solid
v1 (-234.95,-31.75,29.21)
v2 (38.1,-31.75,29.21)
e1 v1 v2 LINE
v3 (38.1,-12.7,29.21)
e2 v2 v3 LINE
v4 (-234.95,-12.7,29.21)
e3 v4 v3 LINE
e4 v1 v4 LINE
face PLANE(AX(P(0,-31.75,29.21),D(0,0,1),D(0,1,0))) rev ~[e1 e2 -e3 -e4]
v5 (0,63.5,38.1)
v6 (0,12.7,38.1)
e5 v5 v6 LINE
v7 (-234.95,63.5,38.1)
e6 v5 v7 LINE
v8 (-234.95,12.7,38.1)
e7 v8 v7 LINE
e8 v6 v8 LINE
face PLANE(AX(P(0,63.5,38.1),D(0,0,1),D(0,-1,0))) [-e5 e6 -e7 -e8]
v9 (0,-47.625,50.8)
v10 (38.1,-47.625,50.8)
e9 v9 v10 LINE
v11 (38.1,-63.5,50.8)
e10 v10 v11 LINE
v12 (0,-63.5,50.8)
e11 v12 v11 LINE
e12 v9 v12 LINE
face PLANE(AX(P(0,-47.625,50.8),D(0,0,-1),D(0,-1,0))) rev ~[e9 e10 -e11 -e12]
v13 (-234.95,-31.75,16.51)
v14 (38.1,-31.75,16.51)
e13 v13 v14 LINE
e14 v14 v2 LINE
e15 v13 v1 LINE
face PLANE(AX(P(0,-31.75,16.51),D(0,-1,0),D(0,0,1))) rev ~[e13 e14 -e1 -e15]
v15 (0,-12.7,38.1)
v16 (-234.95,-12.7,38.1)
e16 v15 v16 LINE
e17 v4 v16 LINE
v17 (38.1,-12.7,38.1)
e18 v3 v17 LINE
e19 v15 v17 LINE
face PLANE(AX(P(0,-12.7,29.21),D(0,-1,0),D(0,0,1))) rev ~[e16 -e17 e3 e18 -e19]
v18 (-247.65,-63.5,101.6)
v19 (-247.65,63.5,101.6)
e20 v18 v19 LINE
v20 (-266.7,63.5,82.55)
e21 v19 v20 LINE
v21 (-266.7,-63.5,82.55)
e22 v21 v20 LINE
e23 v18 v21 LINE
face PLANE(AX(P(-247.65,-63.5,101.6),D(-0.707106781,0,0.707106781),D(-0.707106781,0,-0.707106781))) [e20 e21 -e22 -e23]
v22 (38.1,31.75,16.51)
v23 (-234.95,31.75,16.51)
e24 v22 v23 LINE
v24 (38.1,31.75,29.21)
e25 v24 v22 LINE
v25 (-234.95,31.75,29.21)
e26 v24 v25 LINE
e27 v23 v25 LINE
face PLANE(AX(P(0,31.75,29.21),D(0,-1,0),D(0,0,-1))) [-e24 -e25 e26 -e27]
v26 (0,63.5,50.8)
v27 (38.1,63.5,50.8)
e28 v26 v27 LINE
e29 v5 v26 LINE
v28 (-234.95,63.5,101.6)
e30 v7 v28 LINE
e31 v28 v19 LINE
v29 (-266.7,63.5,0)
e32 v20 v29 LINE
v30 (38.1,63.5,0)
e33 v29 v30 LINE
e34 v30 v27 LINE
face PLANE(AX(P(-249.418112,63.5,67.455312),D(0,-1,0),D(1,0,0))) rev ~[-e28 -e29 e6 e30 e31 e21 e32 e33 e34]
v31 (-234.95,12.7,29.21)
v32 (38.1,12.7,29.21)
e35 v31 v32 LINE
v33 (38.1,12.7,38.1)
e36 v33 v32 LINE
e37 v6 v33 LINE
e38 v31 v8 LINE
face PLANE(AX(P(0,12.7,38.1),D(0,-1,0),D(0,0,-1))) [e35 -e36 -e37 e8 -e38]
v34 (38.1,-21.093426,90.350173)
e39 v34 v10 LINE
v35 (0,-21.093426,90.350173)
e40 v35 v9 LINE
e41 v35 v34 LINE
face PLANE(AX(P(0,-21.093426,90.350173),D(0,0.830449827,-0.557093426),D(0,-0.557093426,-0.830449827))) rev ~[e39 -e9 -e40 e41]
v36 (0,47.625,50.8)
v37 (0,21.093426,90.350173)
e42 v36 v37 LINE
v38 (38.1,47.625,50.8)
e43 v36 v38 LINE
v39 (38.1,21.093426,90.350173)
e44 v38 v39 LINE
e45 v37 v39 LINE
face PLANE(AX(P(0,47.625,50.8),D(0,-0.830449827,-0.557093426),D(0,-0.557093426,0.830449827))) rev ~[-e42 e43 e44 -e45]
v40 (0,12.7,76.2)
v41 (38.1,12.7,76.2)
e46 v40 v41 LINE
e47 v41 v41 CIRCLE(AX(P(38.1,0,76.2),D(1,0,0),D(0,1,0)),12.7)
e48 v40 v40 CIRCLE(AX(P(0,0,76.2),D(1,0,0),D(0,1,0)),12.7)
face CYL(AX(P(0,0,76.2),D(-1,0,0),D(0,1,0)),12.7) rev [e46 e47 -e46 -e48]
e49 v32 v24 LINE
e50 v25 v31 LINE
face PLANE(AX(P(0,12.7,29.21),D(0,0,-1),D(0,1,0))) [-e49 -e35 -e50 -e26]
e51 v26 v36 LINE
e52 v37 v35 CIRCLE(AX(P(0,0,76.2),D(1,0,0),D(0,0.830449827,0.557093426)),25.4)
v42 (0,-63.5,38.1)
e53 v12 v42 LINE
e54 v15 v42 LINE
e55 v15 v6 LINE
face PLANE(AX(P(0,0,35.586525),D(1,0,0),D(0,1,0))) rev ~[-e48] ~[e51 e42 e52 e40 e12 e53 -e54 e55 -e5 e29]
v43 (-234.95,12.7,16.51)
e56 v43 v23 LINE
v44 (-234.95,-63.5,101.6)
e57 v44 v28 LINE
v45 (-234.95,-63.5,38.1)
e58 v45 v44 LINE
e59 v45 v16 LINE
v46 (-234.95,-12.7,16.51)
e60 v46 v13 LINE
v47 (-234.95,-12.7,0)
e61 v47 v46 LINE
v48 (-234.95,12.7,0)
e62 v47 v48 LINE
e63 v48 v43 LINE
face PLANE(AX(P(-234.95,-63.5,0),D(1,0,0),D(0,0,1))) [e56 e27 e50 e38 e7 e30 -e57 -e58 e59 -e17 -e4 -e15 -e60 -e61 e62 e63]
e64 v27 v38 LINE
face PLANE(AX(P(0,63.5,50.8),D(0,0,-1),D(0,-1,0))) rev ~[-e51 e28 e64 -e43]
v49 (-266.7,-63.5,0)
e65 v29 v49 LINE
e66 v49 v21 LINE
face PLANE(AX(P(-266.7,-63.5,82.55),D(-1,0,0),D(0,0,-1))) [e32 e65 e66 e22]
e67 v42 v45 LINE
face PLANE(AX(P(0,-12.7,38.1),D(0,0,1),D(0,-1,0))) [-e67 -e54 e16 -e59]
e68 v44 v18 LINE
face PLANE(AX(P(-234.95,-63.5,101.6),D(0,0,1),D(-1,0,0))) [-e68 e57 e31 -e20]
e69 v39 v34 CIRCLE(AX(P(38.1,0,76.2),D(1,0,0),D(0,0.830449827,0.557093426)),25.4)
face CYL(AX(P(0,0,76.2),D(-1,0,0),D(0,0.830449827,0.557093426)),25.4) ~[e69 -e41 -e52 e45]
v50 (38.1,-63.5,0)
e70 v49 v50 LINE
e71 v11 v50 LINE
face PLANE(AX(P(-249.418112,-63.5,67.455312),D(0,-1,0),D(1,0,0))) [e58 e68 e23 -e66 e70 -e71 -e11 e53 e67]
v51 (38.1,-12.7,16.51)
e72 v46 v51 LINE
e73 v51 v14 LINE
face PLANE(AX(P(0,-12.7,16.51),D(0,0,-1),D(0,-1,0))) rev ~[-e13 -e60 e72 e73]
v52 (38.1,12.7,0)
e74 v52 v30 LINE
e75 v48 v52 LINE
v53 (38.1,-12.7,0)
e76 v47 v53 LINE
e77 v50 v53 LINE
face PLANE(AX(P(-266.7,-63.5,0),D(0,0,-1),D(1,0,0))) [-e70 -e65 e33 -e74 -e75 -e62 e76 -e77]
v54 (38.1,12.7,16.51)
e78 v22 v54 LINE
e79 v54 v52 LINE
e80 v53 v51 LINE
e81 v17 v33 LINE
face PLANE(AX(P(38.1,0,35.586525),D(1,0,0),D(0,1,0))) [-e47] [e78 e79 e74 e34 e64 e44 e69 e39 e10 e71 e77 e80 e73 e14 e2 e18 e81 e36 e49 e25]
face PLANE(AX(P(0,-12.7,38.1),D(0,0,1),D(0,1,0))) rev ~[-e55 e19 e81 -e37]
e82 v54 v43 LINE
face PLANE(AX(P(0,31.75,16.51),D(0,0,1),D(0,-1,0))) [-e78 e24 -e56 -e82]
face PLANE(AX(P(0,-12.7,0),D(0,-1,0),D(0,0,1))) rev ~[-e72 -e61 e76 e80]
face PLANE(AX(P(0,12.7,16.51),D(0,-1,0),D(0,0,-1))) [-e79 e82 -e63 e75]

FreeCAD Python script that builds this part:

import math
import FreeCAD as App
import Part
import Sketcher
from FreeCAD import Vector
Q = App.Units.Quantity


def add_polygon(sketch, points):
    """Adds a closed chain of lines whose ends are joined by coincident constraints."""
    first, n = sketch.GeometryCount, len(points)
    for a, b in zip(points, points[1:] + points[:1]):
        sketch.addGeometry(Part.LineSegment(App.Vector(*a, 0), App.Vector(*b, 0)), False)
    for i in range(n):
        sketch.addConstraint(Sketcher.Constraint("Coincident", first + i, 2, first + (i + 1) % n, 1))

doc = App.newDocument("Part")
body = doc.addObject("PartDesign::Body", "Body")

sketch1 = body.newObject("Sketcher::SketchObject", "Sketch")
sketch1.AttachmentSupport = (doc.getObject("YZ_Plane"), [""])
sketch1.MapMode = "FlatFace"
sketch1.addGeometry([
    Part.LineSegment(Vector(-64, 0, 0), Vector(-13, 0, 0)),
    Part.LineSegment(Vector(-13, 0, 0), Vector(-13, 17, 0)),
    Part.LineSegment(Vector(-13, 17, 0), Vector(-32, 17, 0)),
    Part.LineSegment(Vector(-32, 17, 0), Vector(-32, 29, 0)),
    Part.LineSegment(Vector(-32, 29, 0), Vector(-13, 29, 0)),
    Part.LineSegment(Vector(-13, 29, 0), Vector(-13, 38, 0)),
    Part.LineSegment(Vector(-13, 38, 0), Vector(13, 38, 0)),
    Part.LineSegment(Vector(13, 38, 0), Vector(13, 29, 0)),
    Part.LineSegment(Vector(13, 29, 0), Vector(32, 29, 0)),
    Part.LineSegment(Vector(32, 29, 0), Vector(32, 17, 0)),
    Part.LineSegment(Vector(32, 17, 0), Vector(13, 17, 0)),
    Part.LineSegment(Vector(13, 17, 0), Vector(13, 0, 0)),
    Part.LineSegment(Vector(13, 0, 0), Vector(64, 0, 0)),
    Part.LineSegment(Vector(64, 0, 0), Vector(64, 51, 0)),
    Part.LineSegment(Vector(64, 51, 0), Vector(48, 51, 0)),
    Part.LineSegment(Vector(48, 51, 0), Vector(21, 90, 0)),
    Part.ArcOfCircle(Part.Circle(Vector(0, 76, 0), Vector(0, 0, 1), 25), math.radians(34), math.radians(146)),
    Part.LineSegment(Vector(-21, 90, 0), Vector(-48, 51, 0)),
    Part.LineSegment(Vector(-48, 51, 0), Vector(-64, 51, 0)),
    Part.LineSegment(Vector(-64, 51, 0), Vector(-64, 0, 0)),
    Part.Circle(Vector(0, 76, 0), Vector(0, 0, 1), 13),
], False)
sketch1.addConstraint([
    Sketcher.Constraint("Coincident", 0, 2, 1, 1),
    Sketcher.Constraint("Coincident", 1, 2, 2, 1),
    Sketcher.Constraint("Coincident", 2, 2, 3, 1),
    Sketcher.Constraint("Coincident", 3, 2, 4, 1),
    Sketcher.Constraint("Coincident", 4, 2, 5, 1),
    Sketcher.Constraint("Coincident", 5, 2, 6, 1),
    Sketcher.Constraint("Coincident", 6, 2, 7, 1),
    Sketcher.Constraint("Coincident", 7, 2, 8, 1),
    Sketcher.Constraint("Coincident", 8, 2, 9, 1),
    Sketcher.Constraint("Coincident", 9, 2, 10, 1),
    Sketcher.Constraint("Coincident", 10, 2, 11, 1),
    Sketcher.Constraint("Coincident", 11, 2, 12, 1),
    Sketcher.Constraint("Coincident", 12, 2, 13, 1),
    Sketcher.Constraint("Coincident", 13, 2, 14, 1),
    Sketcher.Constraint("Coincident", 14, 2, 15, 1),
    Sketcher.Constraint("Tangent", 15, 2, 16, 1),
    Sketcher.Constraint("Tangent", 16, 2, 17, 1),
    Sketcher.Constraint("Coincident", 17, 2, 18, 1),
    Sketcher.Constraint("Coincident", 18, 2, 19, 1),
    Sketcher.Constraint("Coincident", 19, 2, 0, 1),
    Sketcher.Constraint("Horizontal", 0),
    Sketcher.Constraint("Vertical", 1),
    Sketcher.Constraint("Horizontal", 2),
    Sketcher.Constraint("Vertical", 3),
    Sketcher.Constraint("Horizontal", 4),
    Sketcher.Constraint("Vertical", 5),
    Sketcher.Constraint("Horizontal", 6),
    Sketcher.Constraint("Vertical", 7),
    Sketcher.Constraint("Horizontal", 8),
    Sketcher.Constraint("Vertical", 9),
    Sketcher.Constraint("Horizontal", 10),
    Sketcher.Constraint("Vertical", 11),
    Sketcher.Constraint("Horizontal", 12),
    Sketcher.Constraint("Vertical", 13),
    Sketcher.Constraint("Horizontal", 14),
    Sketcher.Constraint("Horizontal", 18),
    Sketcher.Constraint("Vertical", 19),
    Sketcher.Constraint("Coincident", 20, 3, 16, 3),
    Sketcher.Constraint("Symmetric", 0, 2, 11, 2, -1, 1),
    Sketcher.Constraint("Symmetric", 4, 2, 7, 2, -2),
    Sketcher.Constraint("Symmetric", 2, 2, 9, 2, -2),
    Sketcher.Constraint("Symmetric", 15, 2, 16, 2, -2),
    Sketcher.Constraint("Symmetric", 13, 2, 18, 2, -2),
    Sketcher.Constraint("PointOnObject", 0, 2, -1),
    Sketcher.Constraint("Vertical", 1, 2, 4, 2),
    Sketcher.Constraint("Equal", 12, 13),
    Sketcher.Constraint("Diameter", 20, Q("1 in")),
    Sketcher.Constraint("Radius", 16, Q("1 in")),
    Sketcher.Constraint("DistanceX", 0, 1, 0, 2, Q("2 in")),
    Sketcher.Constraint("DistanceX", 6, 1, 6, 2, Q("1 in")),
    Sketcher.Constraint("DistanceY", 3, 1, 3, 2, Q("0.5 in")),
    Sketcher.Constraint("DistanceY", -1, 1, 16, 3, Q("3 in")),
    Sketcher.Constraint("DistanceX", 2, 2, 2, 1, Q("0.75 in")),
    Sketcher.Constraint("DistanceY", 1, 1, 1, 2, Q("0.65 in")),
    Sketcher.Constraint("DistanceY", 5, 1, 5, 2, Q("0.35 in")),
    Sketcher.Constraint("DistanceX", 14, 2, 14, 1, Q("0.625 in")),
])
pad1 = body.newObject("PartDesign::Pad", "Pad")
pad1.Profile = sketch1
pad1.Length = Q("1.5 in")

sketch2 = body.newObject("Sketcher::SketchObject", "Sketch001")
sketch2.AttachmentSupport = (doc.getObject("YZ_Plane"), [""])
sketch2.MapMode = "FlatFace"
add_polygon(sketch2, [(13, 17), (13, 0), (64, 0), (64, 38), (13, 38), (13, 29), (32, 29), (32, 17)])
add_polygon(sketch2, [(-13, 29), (-13, 38), (-64, 38), (-64, 0), (-13, 0), (-13, 17), (-32, 17), (-32, 29)])
sketch2.addConstraint([
    Sketcher.Constraint("Vertical", 0),
    Sketcher.Constraint("Horizontal", 1),
    Sketcher.Constraint("Vertical", 2),
    Sketcher.Constraint("Horizontal", 3),
    Sketcher.Constraint("Vertical", 4),
    Sketcher.Constraint("Horizontal", 5),
    Sketcher.Constraint("Vertical", 6),
    Sketcher.Constraint("Horizontal", 7),
    Sketcher.Constraint("Vertical", 8),
    Sketcher.Constraint("Horizontal", 9),
    Sketcher.Constraint("Vertical", 10),
    Sketcher.Constraint("Horizontal", 11),
    Sketcher.Constraint("Vertical", 12),
    Sketcher.Constraint("Horizontal", 13),
    Sketcher.Constraint("Vertical", 14),
    Sketcher.Constraint("Horizontal", 15),
    Sketcher.Constraint("Symmetric", 1, 2, 10, 2, -1, 1),
    Sketcher.Constraint("Symmetric", 3, 2, 8, 2, -2),
    Sketcher.Constraint("Symmetric", 0, 2, 11, 2, -2),
    Sketcher.Constraint("Symmetric", 6, 2, 13, 2, -2),
    Sketcher.Constraint("Horizontal", 5, 2, 14, 2),
    Sketcher.Constraint("Vertical", 0, 2, 3, 2),
    Sketcher.Constraint("DistanceX", 1, 1, 1, 2, Q("2 in")),
    Sketcher.Constraint("DistanceY", 2, 1, 2, 2, Q("1.5 in")),
    Sketcher.Constraint("DistanceY", 6, 2, 6, 1, Q("0.5 in")),
    Sketcher.Constraint("DistanceX", 8, 2, 3, 2, Q("1 in")),
    Sketcher.Constraint("DistanceX", 5, 1, 5, 2, Q("0.75 in")),
    Sketcher.Constraint("DistanceY", 0, 2, 0, 1, Q("0.65 in")),
])
pad2 = body.newObject("PartDesign::Pad", "Pad001")
pad2.Profile = sketch2
pad2.Length = Q("10.5 in")
pad2.Reversed = True

sketch3 = body.newObject("Sketcher::SketchObject", "Sketch002")
sketch3.AttachmentSupport = (doc.getObject("XZ_Plane"), [""])
sketch3.MapMode = "FlatFace"
sketch3.AttachmentOffset = App.Placement(Vector(0, 0, 2.5 * 25.4), App.Rotation())
add_polygon(sketch3, [(-267, 83), (-267, 0), (-235, 0), (-235, 102), (-248, 102)])
sketch3.addConstraint([
    Sketcher.Constraint("Vertical", 0),
    Sketcher.Constraint("Horizontal", 1),
    Sketcher.Constraint("Vertical", 2),
    Sketcher.Constraint("Horizontal", 3),
    Sketcher.Constraint("PointOnObject", 0, 2, -1),
    Sketcher.Constraint("DistanceY", 2, 1, 2, 2, Q("4 in")),
    Sketcher.Constraint("DistanceX", 3, 2, 3, 1, Q("0.5 in")),
    Sketcher.Constraint("Angle", 4, Q("-135 deg")),
    Sketcher.Constraint("DistanceX", 1, 1, 1, 2, Q("1.25 in")),
    Sketcher.Constraint("DistanceX", 0, 2, -1, 1, Q("10.5 in")),
])
pad3 = body.newObject("PartDesign::Pad", "Pad002")
pad3.Profile = sketch3
pad3.Length = Q("5 in")
pad3.Reversed = True

doc.recompute()
